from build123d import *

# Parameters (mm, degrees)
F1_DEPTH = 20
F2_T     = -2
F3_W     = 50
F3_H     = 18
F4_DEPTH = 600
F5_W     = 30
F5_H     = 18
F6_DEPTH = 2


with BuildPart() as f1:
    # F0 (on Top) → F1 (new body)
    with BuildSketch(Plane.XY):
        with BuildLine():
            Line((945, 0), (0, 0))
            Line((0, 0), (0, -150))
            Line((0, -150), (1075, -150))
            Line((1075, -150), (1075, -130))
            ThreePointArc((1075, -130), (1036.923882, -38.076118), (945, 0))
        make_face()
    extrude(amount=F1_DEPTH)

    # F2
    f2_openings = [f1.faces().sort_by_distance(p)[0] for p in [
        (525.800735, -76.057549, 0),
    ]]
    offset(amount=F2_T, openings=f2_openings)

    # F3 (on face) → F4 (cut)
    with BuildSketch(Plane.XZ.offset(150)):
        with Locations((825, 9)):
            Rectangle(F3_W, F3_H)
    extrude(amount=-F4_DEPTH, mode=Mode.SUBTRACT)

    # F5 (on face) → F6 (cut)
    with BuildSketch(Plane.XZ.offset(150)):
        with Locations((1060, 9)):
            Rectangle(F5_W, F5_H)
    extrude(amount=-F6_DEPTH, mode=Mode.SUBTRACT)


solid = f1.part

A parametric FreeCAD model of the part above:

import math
import FreeCAD as App
import Part
import Sketcher
from FreeCAD import Vector
Q = App.Units.Quantity


def faces_at(feature, points):
    """Names of the faces that lie closest to the given points."""
    faces = feature.Shape.Faces
    near = lambda p: min(range(len(faces)), key=lambda i: faces[i].distToShape(Part.Vertex(*p))[0])
    return sorted({f"Face{near(p) + 1}" for p in points})


def add_polygon(sketch, points):
    """Adds a closed chain of lines whose ends are joined by coincident constraints."""
    first, n = sketch.GeometryCount, len(points)
    for a, b in zip(points, points[1:] + points[:1]):
        sketch.addGeometry(Part.LineSegment(App.Vector(*a, 0), App.Vector(*b, 0)), False)
    for i in range(n):
        sketch.addConstraint(Sketcher.Constraint("Coincident", first + i, 2, first + (i + 1) % n, 1))

doc = App.newDocument("Part")
body = doc.addObject("PartDesign::Body", "Body")

# Sketch on XY plane
sketch1 = doc.addObject("Sketcher::SketchObject", "Sketch")
body.addObject(sketch1)
sketch1.AttachmentSupport = (doc.XY_Plane, [""])
sketch1.MapMode = "FlatFace"
sketch1.addGeometry([
    Part.LineSegment(Vector(945, 0, 0), Vector(0, 0, 0)),  # 0
    Part.LineSegment(Vector(0, 0, 0), Vector(0, -150, 0)),  # 1
    Part.LineSegment(Vector(0, -150, 0), Vector(1075, -150, 0)),  # 2
    Part.LineSegment(Vector(1075, -150, 0), Vector(1075, -130, 0)),  # 3
    Part.ArcOfCircle(Part.Circle(Vector(945, -130, 0), Vector(0, 0, 1), 130), math.radians(0), math.radians(90)),  # 4
], False)
sketch1.addConstraint([
    Sketcher.Constraint("Coincident", 0, 2, 1, 1),
    Sketcher.Constraint("Coincident", 1, 2, 2, 1),
    Sketcher.Constraint("Coincident", 2, 2, 3, 1),
    Sketcher.Constraint("Tangent", 3, 2, 4, 1),
    Sketcher.Constraint("Tangent", 4, 2, 0, 1),
    Sketcher.Constraint("Horizontal", 0),
    Sketcher.Constraint("Vertical", 1),
    Sketcher.Constraint("Horizontal", 2),
    Sketcher.Constraint("Vertical", 3),
    Sketcher.Constraint("Coincident", 0, 2, -1, 1),
    Sketcher.Constraint("Radius", 4, Q("129.999998 mm")),
    Sketcher.Constraint("DistanceX", 0, 2, 0, 1, Q("945 mm")),
    Sketcher.Constraint("DistanceY", 1, 2, 1, 1, Q("150 mm")),
])
pad1 = doc.addObject("PartDesign::Pad", "Pad")
body.addObject(pad1)
pad1.Profile = sketch1
pad1.Length = 20
doc.recompute()

thickness = doc.addObject("PartDesign::Thickness", "Thickness")
body.addObject(thickness)
thickness.Base = (pad1, faces_at(pad1, [(537.5, -75, 0)]))
thickness.Value = 2
thickness.Reversed = True
thickness.Join = "Arc"

# Sketch on XZ plane
sketch2 = doc.addObject("Sketcher::SketchObject", "Sketch001")
body.addObject(sketch2)
sketch2.AttachmentSupport = (doc.XZ_Plane, [""])
sketch2.MapMode = "FlatFace"
sketch2.AttachmentOffset = App.Placement(Vector(0, 0, 150), App.Rotation())
add_polygon(sketch2, [(800, 18), (800, 0), (850, 0), (850, 18)])  # lines 0-3
sketch2.addConstraint([
    Sketcher.Constraint("Vertical", 0),
    Sketcher.Constraint("Horizontal", 1),
    Sketcher.Constraint("Vertical", 2),
    Sketcher.Constraint("Horizontal", 3),
    Sketcher.Constraint("PointOnObject", 0, 2, -1),
    Sketcher.Constraint("DistanceX", 1, 1, 1, 2, Q("50 mm")),
    Sketcher.Constraint("DistanceY", 0, 2, 0, 1, Q("18 mm")),
    Sketcher.Constraint("DistanceX", -1, 1, 0, 2, Q("800 mm")),
])
pocket1 = doc.addObject("PartDesign::Pocket", "Pocket")
body.addObject(pocket1)
pocket1.Profile = sketch2
pocket1.Length = 600

# Sketch on XZ plane
sketch3 = doc.addObject("Sketcher::SketchObject", "Sketch002")
body.addObject(sketch3)
sketch3.AttachmentSupport = (doc.XZ_Plane, [""])
sketch3.MapMode = "FlatFace"
sketch3.AttachmentOffset = App.Placement(Vector(0, 0, 150), App.Rotation())
add_polygon(sketch3, [(1045, 18), (1045, 0), (1075, 0), (1075, 18)])  # lines 0-3
sketch3.addConstraint([
    Sketcher.Constraint("Vertical", 0),
    Sketcher.Constraint("Horizontal", 1),
    Sketcher.Constraint("Vertical", 2),
    Sketcher.Constraint("Horizontal", 3),
    Sketcher.Constraint("PointOnObject", 0, 2, -1),
    Sketcher.Constraint("DistanceX", 1, 1, 1, 2, Q("30 mm")),
    Sketcher.Constraint("DistanceY", 0, 2, 0, 1, Q("18 mm")),
    Sketcher.Constraint("DistanceX", -1, 1, 0, 2, Q("1045 mm")),
])
pocket2 = doc.addObject("PartDesign::Pocket", "Pocket001")
body.addObject(pocket2)
pocket2.Profile = sketch3
pocket2.Length = 2

doc.recompute()
